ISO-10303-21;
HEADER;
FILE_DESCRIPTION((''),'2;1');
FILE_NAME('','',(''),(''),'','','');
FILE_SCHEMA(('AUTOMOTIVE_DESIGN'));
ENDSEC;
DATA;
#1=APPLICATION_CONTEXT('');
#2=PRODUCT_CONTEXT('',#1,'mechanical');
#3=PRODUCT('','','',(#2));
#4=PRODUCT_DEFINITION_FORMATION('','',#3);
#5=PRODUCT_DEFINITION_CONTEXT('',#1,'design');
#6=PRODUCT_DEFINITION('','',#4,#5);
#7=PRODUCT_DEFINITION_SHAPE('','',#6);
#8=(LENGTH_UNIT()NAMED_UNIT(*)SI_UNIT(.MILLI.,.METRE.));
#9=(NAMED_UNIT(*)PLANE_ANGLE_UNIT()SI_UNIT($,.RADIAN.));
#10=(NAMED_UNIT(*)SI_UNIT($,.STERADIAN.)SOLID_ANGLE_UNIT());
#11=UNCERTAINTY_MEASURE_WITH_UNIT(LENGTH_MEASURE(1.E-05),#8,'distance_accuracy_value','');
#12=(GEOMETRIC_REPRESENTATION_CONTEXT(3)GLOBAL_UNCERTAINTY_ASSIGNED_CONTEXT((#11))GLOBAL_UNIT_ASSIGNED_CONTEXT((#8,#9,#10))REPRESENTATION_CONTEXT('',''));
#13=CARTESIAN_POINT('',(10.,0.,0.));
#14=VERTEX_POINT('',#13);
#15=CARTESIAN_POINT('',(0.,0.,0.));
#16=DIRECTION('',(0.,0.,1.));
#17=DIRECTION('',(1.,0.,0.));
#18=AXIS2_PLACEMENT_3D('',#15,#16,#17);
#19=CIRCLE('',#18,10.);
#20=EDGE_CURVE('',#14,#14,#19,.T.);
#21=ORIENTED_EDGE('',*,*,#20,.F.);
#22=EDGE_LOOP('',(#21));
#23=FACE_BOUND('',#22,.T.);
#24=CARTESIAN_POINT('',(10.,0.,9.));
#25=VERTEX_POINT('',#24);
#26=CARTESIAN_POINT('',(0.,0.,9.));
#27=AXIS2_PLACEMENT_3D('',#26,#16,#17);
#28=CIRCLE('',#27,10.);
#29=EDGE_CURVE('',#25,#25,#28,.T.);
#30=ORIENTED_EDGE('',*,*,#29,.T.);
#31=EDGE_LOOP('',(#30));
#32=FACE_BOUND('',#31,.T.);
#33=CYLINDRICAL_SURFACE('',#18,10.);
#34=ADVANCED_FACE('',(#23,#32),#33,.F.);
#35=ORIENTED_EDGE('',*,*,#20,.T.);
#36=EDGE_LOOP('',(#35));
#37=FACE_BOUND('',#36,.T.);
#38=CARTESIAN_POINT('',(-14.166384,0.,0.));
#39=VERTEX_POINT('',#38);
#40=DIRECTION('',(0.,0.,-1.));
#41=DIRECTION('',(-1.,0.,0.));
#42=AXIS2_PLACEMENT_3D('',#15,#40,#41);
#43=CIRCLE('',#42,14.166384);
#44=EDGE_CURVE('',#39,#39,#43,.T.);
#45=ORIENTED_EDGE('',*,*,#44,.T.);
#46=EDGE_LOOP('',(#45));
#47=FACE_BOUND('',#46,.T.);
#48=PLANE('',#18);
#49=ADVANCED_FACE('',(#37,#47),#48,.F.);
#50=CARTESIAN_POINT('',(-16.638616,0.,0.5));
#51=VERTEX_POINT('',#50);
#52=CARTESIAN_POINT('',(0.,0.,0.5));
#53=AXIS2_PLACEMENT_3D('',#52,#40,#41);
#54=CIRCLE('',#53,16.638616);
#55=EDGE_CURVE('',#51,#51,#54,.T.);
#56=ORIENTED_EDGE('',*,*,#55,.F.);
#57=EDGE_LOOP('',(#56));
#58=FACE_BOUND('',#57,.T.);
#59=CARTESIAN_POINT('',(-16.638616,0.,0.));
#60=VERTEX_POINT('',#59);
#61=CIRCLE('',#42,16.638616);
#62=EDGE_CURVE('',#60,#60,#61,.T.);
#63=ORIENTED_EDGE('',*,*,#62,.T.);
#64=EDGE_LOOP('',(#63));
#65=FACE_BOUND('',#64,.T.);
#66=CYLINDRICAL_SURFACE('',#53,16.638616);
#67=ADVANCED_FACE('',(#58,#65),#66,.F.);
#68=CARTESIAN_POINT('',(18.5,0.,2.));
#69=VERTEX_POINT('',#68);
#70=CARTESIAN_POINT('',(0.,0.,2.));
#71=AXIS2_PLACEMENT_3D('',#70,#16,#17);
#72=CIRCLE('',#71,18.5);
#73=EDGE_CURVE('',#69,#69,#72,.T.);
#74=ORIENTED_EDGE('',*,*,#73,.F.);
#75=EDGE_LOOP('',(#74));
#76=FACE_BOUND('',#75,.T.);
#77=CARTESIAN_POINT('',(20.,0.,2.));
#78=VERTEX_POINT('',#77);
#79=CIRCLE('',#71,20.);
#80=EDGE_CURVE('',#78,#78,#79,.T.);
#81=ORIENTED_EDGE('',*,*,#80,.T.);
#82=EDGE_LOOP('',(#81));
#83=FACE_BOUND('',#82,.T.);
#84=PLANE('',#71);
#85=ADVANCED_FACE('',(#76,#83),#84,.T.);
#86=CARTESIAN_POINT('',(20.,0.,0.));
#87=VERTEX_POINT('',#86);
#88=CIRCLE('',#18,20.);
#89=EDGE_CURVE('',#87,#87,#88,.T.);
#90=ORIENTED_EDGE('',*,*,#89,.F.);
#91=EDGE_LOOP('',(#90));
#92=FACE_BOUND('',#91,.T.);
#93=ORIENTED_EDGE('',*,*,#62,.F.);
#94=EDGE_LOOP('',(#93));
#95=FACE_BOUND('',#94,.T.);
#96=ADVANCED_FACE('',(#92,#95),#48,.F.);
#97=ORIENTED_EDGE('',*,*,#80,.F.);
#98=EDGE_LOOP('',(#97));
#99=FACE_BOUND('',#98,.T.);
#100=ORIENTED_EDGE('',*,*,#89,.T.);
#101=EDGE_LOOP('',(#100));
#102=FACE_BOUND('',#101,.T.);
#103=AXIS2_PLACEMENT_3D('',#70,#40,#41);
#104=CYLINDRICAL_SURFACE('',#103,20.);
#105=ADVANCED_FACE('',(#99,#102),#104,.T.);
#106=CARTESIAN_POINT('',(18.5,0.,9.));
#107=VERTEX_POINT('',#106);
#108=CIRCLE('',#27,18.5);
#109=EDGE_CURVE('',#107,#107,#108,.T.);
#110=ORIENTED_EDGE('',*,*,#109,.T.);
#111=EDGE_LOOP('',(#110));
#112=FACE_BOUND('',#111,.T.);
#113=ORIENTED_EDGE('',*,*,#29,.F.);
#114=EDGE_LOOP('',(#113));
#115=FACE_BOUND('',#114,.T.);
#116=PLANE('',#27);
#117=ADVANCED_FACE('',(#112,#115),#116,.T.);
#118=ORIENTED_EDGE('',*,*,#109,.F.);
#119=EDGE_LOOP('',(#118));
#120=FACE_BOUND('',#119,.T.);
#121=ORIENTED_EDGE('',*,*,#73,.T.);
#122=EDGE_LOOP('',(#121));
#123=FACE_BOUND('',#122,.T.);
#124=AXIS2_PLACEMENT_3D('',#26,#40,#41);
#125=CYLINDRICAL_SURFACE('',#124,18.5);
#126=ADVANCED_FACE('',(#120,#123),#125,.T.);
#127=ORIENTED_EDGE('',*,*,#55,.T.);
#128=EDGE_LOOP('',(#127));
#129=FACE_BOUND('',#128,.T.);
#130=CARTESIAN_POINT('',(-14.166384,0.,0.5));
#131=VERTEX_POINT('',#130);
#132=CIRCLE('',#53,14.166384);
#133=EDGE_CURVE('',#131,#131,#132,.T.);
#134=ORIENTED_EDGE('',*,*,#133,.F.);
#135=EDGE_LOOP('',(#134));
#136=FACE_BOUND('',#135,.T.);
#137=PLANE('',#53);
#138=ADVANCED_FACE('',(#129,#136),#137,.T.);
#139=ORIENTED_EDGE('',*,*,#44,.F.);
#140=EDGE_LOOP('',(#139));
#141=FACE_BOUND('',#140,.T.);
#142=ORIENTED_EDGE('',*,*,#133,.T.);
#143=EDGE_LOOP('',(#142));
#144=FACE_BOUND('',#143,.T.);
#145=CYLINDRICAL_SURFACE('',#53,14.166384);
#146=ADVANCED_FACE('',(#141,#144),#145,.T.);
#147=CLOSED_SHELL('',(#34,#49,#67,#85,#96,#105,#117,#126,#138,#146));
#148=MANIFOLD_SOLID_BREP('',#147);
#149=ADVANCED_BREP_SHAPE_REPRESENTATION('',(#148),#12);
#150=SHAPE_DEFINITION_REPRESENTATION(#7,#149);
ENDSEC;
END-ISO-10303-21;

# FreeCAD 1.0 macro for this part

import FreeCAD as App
import Part
import Sketcher
Q = App.Units.Quantity

doc = App.newDocument("Part")
body = doc.addObject("PartDesign::Body", "Body")

sketch1 = doc.addObject("Sketcher::SketchObject", "Sketch")
body.addObject(sketch1)
sketch1.AttachmentSupport = (doc.XY_Plane, [""])
sketch1.MapMode = "FlatFace"
sketch1.addGeometry(Part.Circle(App.Vector(0, 0, 0), App.Vector(0, 0, 1), 20), False)
sketch1.addConstraint(Sketcher.Constraint("Coincident", 0, 3, -1, 1))
sketch1.addConstraint(Sketcher.Constraint("Diameter", 0, Q("40 mm")))
pad1 = doc.addObject("PartDesign::Pad", "Pad")
body.addObject(pad1)
pad1.Profile = sketch1
pad1.Length = 2

sketch2 = doc.addObject("Sketcher::SketchObject", "Sketch001")
body.addObject(sketch2)
sketch2.AttachmentSupport = (doc.XY_Plane, [""])
sketch2.MapMode = "FlatFace"
sketch2.AttachmentOffset = App.Placement(App.Vector(0, 0, 2), App.Rotation())
sketch2.addGeometry(Part.Circle(App.Vector(0, 0, 0), App.Vector(0, 0, 1), 18), False)
sketch2.addConstraint(Sketcher.Constraint("Coincident", 0, 3, -1, 1))
sketch2.addConstraint(Sketcher.Constraint("Diameter", 0, Q("37 mm")))
pad2 = doc.addObject("PartDesign::Pad", "Pad001")
body.addObject(pad2)
pad2.Profile = sketch2
pad2.Length = 7

sketch3 = doc.addObject("Sketcher::SketchObject", "Sketch002")
body.addObject(sketch3)
sketch3.AttachmentSupport = (doc.XY_Plane, [""])
sketch3.MapMode = "FlatFace"
sketch3.AttachmentOffset = App.Placement(App.Vector(0, 0, 9), App.Rotation())
sketch3.addGeometry(Part.Circle(App.Vector(0, 0, 0), App.Vector(0, 0, 1), 10), False)
sketch3.addConstraint(Sketcher.Constraint("Coincident", 0, 3, -1, 1))
sketch3.addConstraint(Sketcher.Constraint("Diameter", 0, Q("20 mm")))
pocket1 = doc.addObject("PartDesign::Pocket", "Pocket")
body.addObject(pocket1)
pocket1.Profile = sketch3
pocket1.Type = "ThroughAll"

sketch4 = doc.addObject("Sketcher::SketchObject", "Sketch003")
body.addObject(sketch4)
sketch4.AttachmentSupport = (doc.XY_Plane, [""])
sketch4.MapMode = "FlatFace"
sketch4.addGeometry(Part.Circle(App.Vector(0, 0, 0), App.Vector(0, 0, 1), 17), False)
sketch4.addGeometry(Part.Circle(App.Vector(0, 0, 0), App.Vector(0, 0, 1), 14), False)
sketch4.addConstraint(Sketcher.Constraint("Coincident", 0, 3, -1, 1))
sketch4.addConstraint(Sketcher.Constraint("Coincident", 1, 3, -1, 1))
sketch4.addConstraint(Sketcher.Constraint("Diameter", 0, Q("33.277232 mm")))
sketch4.addConstraint(Sketcher.Constraint("Diameter", 1, Q("28.332768 mm")))
pocket2 = doc.addObject("PartDesign::Pocket", "Pocket001")
body.addObject(pocket2)
pocket2.Profile = sketch4
pocket2.Length = 0.5
pocket2.Reversed = True

doc.recompute()
